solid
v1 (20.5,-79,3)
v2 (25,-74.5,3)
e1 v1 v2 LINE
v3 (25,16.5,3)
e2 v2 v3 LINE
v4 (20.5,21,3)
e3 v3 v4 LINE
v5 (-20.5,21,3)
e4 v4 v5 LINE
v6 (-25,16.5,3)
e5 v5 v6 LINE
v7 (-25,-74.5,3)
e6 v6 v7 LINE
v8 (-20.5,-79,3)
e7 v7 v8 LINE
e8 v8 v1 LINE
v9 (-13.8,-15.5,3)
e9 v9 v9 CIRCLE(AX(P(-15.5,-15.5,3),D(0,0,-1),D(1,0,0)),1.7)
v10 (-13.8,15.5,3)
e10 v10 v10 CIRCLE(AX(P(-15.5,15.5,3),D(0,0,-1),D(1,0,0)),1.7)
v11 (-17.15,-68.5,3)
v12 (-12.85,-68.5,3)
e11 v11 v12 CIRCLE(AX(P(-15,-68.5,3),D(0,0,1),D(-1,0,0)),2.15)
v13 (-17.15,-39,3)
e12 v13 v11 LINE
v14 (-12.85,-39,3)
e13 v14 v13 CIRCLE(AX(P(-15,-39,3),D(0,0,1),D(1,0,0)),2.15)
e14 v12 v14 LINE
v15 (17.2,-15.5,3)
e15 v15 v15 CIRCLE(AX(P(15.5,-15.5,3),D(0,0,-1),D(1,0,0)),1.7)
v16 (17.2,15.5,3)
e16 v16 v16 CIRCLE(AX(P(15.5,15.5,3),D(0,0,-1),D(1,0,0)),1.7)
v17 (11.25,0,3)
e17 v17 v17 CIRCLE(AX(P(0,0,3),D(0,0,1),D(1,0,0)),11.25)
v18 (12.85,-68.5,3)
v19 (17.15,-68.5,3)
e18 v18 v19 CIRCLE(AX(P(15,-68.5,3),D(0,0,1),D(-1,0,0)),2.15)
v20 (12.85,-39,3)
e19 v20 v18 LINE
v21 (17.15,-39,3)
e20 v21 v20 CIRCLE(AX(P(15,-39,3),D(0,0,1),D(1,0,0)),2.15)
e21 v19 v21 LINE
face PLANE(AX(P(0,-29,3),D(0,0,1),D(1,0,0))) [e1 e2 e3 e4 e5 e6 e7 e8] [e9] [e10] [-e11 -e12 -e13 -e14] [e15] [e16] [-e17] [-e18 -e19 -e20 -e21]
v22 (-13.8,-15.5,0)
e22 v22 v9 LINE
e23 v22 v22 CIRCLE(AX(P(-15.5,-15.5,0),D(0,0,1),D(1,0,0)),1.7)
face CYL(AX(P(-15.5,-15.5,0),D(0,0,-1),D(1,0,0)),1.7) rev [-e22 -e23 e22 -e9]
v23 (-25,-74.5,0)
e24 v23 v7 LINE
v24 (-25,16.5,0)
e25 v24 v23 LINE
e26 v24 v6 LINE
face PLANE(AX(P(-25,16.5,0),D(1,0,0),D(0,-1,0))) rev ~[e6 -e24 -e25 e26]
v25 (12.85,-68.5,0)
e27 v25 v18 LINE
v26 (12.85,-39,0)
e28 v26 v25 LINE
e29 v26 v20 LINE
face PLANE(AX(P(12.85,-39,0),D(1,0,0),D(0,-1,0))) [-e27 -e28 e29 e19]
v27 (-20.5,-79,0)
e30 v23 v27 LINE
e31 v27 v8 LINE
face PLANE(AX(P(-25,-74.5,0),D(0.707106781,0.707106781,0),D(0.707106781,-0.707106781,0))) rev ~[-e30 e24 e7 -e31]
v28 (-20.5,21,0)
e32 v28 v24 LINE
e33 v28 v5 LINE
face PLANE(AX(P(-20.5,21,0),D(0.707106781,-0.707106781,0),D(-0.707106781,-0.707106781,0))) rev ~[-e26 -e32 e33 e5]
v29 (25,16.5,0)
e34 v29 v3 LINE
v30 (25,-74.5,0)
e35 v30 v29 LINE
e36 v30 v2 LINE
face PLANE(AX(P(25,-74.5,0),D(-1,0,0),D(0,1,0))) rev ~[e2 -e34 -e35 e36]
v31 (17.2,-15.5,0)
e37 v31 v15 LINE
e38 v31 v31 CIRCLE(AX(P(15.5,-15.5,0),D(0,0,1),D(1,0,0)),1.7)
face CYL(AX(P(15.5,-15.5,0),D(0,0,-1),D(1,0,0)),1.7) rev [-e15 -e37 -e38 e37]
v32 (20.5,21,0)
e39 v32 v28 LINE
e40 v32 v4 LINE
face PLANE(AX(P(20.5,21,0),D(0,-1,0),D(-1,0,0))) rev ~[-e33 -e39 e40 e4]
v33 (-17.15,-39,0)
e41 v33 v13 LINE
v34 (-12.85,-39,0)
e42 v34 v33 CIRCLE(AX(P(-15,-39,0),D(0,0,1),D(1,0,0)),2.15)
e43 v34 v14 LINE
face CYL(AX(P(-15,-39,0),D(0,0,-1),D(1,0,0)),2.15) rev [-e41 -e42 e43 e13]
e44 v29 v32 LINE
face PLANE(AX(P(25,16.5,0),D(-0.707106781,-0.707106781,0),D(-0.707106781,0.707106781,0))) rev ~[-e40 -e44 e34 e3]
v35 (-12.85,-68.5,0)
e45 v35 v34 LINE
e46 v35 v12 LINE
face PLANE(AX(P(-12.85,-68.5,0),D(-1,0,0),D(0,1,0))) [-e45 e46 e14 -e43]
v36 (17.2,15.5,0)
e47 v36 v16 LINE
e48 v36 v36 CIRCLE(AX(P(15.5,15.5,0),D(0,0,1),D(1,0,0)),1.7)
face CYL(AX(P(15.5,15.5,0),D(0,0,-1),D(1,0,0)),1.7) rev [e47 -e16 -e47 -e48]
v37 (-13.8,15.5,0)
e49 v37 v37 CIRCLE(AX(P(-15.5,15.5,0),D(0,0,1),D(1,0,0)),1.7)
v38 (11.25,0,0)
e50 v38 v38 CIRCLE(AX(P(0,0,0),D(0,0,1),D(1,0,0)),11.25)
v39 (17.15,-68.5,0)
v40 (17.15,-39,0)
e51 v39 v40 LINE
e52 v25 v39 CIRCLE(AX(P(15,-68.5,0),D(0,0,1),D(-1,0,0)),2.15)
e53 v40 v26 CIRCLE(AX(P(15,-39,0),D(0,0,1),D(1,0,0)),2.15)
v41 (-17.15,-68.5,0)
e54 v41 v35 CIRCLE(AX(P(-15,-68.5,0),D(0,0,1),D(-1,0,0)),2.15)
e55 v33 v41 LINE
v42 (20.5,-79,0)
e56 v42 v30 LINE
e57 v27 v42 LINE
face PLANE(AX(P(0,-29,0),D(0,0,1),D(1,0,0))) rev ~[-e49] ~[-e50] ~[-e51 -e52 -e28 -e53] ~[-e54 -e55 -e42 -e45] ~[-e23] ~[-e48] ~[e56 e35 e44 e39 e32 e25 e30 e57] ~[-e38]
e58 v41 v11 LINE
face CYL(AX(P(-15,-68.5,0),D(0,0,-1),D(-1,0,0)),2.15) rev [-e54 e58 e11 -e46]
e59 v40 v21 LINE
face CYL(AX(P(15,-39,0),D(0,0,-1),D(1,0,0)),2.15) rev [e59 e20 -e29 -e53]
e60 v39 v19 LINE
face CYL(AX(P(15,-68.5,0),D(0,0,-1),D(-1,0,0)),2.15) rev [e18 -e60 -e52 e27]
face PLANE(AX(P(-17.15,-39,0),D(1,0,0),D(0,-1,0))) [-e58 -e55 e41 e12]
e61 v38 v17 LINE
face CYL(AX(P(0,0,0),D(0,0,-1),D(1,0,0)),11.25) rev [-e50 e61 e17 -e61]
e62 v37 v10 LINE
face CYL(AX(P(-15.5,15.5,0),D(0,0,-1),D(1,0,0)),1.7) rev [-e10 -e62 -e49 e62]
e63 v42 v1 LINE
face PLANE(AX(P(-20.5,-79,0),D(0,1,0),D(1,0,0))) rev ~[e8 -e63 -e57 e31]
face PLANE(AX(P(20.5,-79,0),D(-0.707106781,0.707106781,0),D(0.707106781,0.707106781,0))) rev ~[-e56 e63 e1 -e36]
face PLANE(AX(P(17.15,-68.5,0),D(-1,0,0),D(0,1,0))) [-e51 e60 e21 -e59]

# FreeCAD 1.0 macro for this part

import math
import FreeCAD as App
import Part
import Sketcher
from FreeCAD import Vector
Q = App.Units.Quantity

doc = App.newDocument("Part")
body = doc.addObject("PartDesign::Body", "Body")

# Sketch on XY plane
sketch1 = body.newObject("Sketcher::SketchObject", "Sketch")
sketch1.AttachmentSupport = (doc.getObject("XY_Plane"), [""])
sketch1.MapMode = "FlatFace"
sketch1.addGeometry([
    Part.LineSegment(Vector(20.5, 21, 0), Vector(-20.5, 21, 0)),  # 0
    Part.LineSegment(Vector(-20.5, 21, 0), Vector(-25, 16.5, 0)),  # 1
    Part.LineSegment(Vector(-25, 16.5, 0), Vector(-25, -74.5, 0)),  # 2
    Part.LineSegment(Vector(-25, -74.5, 0), Vector(-20.5, -79, 0)),  # 3
    Part.LineSegment(Vector(-20.5, -79, 0), Vector(20.5, -79, 0)),  # 4
    Part.LineSegment(Vector(20.5, -79, 0), Vector(25, -74.5, 0)),  # 5
    Part.LineSegment(Vector(25, -74.5, 0), Vector(25, 16.5, 0)),  # 6
    Part.LineSegment(Vector(25, 16.5, 0), Vector(20.5, 21, 0)),  # 7
    Part.ArcOfCircle(Part.Circle(Vector(-15, -39, 0), Vector(0, 0, 1), 2.1), math.radians(0), math.radians(180)),  # 8
    Part.LineSegment(Vector(-12.8, -39, 0), Vector(-12.8, -68.5, 0)),  # 9
    Part.ArcOfCircle(Part.Circle(Vector(-15, -68.5, 0), Vector(0, 0, 1), 2.1), math.radians(180), math.radians(360)),  # 10
    Part.LineSegment(Vector(-17.1, -68.5, 0), Vector(-17.1, -39, 0)),  # 11
    Part.ArcOfCircle(Part.Circle(Vector(15, -39, 0), Vector(0, 0, 1), 2.1), math.radians(0), math.radians(180)),  # 12
    Part.LineSegment(Vector(17.1, -39, 0), Vector(17.1, -68.5, 0)),  # 13
    Part.ArcOfCircle(Part.Circle(Vector(15, -68.5, 0), Vector(0, 0, 1), 2.1), math.radians(180), math.radians(360)),  # 14
    Part.LineSegment(Vector(12.8, -68.5, 0), Vector(12.8, -39, 0)),  # 15
    Part.Circle(Vector(0, 0, 0), Vector(0, 0, 1), 11.2),  # 16
], False)
sketch1.addConstraint([
    Sketcher.Constraint("Coincident", 0, 2, 1, 1),
    Sketcher.Constraint("Coincident", 1, 2, 2, 1),
    Sketcher.Constraint("Coincident", 2, 2, 3, 1),
    Sketcher.Constraint("Coincident", 3, 2, 4, 1),
    Sketcher.Constraint("Coincident", 4, 2, 5, 1),
    Sketcher.Constraint("Coincident", 5, 2, 6, 1),
    Sketcher.Constraint("Coincident", 6, 2, 7, 1),
    Sketcher.Constraint("Coincident", 7, 2, 0, 1),
    Sketcher.Constraint("Tangent", 8, 1, 9, 1),
    Sketcher.Constraint("Tangent", 9, 2, 10, 2),
    Sketcher.Constraint("Tangent", 10, 1, 11, 1),
    Sketcher.Constraint("Tangent", 11, 2, 8, 2),
    Sketcher.Constraint("Tangent", 12, 1, 13, 1),
    Sketcher.Constraint("Tangent", 13, 2, 14, 2),
    Sketcher.Constraint("Tangent", 14, 1, 15, 1),
    Sketcher.Constraint("Tangent", 15, 2, 12, 2),
    Sketcher.Constraint("Horizontal", 0),
    Sketcher.Constraint("Vertical", 2),
    Sketcher.Constraint("Horizontal", 4),
    Sketcher.Constraint("Vertical", 6),
    Sketcher.Constraint("Vertical", 9),
    Sketcher.Constraint("Vertical", 11),
    Sketcher.Constraint("Vertical", 13),
    Sketcher.Constraint("Vertical", 15),
    Sketcher.Constraint("Coincident", 16, 3, -1, 1),
    Sketcher.Constraint("Equal", 10, 12),
    Sketcher.Constraint("Symmetric", 8, 3, 12, 3, -2),
    Sketcher.Constraint("Symmetric", 2, 2, 5, 2, -2),
    Sketcher.Constraint("Perpendicular", 1, 3),
    Sketcher.Constraint("Perpendicular", 3, 5),
    Sketcher.Constraint("Perpendicular", 5, 7),
    Sketcher.Constraint("Horizontal", 10, 3, 14, 3),
    Sketcher.Constraint("Horizontal", 1, 2, 6, 2),
    Sketcher.Constraint("Vertical", 0, 2, 3, 2),
    Sketcher.Constraint("Vertical", 4, 2, 7, 2),
    Sketcher.Constraint("Diameter", 16, Q("22.5 mm")),
    Sketcher.Constraint("DistanceX", 0, 2, 0, 1, Q("41 mm")),
    Sketcher.Constraint("DistanceY", 2, 2, 2, 1, Q("91 mm")),
    Sketcher.Constraint("Radius", 8, Q("2.15 mm")),
    Sketcher.Constraint("DistanceY", 9, 2, 9, 1, Q("29.5 mm")),
    Sketcher.Constraint("DistanceX", 8, 3, -1, 1, Q("15 mm")),
    Sketcher.Constraint("DistanceY", 8, 3, -1, 1, Q("39 mm")),
    Sketcher.Constraint("DistanceY", -1, 1, 0, 2, Q("21 mm")),
    Sketcher.Constraint("DistanceX", 1, 2, -1, 1, Q("25 mm")),
])
pad1 = body.newObject("PartDesign::Pad", "Pad")
pad1.Profile = sketch1
pad1.Length = 3

# Sketch on XY plane
sketch2 = body.newObject("Sketcher::SketchObject", "Sketch001")
sketch2.AttachmentSupport = (doc.getObject("XY_Plane"), [""])
sketch2.MapMode = "FlatFace"
sketch2.addGeometry([
    Part.Circle(Vector(-15.5, 15.5, 0), Vector(0, 0, 1), 1.7),
    Part.Circle(Vector(15.5, 15.5, 0), Vector(0, 0, 1), 1.7),
    Part.Circle(Vector(15.5, -15.5, 0), Vector(0, 0, 1), 1.7),
    Part.Circle(Vector(-15.5, -15.5, 0), Vector(0, 0, 1), 1.7),
], False)
sketch2.addConstraint([
    Sketcher.Constraint("Equal", 0, 1),
    Sketcher.Constraint("Equal", 1, 2),
    Sketcher.Constraint("Equal", 2, 3),
    Sketcher.Constraint("Symmetric", 0, 3, 2, 3, -1, 1),
    Sketcher.Constraint("Symmetric", 1, 3, 3, 3, -1, 1),
    Sketcher.Constraint("Symmetric", 0, 3, 1, 3, -2),
    Sketcher.Constraint("Diameter", 0, Q("3.4 mm")),
    Sketcher.Constraint("DistanceX", 0, 3, 1, 3, Q("31 mm")),
    Sketcher.Constraint("DistanceY", 2, 3, 1, 3, Q("31 mm")),
])
pocket1 = body.newObject("PartDesign::Pocket", "Pocket")
pocket1.Profile = sketch2
pocket1.Length = 25
pocket1.Reversed = True

doc.recompute()
